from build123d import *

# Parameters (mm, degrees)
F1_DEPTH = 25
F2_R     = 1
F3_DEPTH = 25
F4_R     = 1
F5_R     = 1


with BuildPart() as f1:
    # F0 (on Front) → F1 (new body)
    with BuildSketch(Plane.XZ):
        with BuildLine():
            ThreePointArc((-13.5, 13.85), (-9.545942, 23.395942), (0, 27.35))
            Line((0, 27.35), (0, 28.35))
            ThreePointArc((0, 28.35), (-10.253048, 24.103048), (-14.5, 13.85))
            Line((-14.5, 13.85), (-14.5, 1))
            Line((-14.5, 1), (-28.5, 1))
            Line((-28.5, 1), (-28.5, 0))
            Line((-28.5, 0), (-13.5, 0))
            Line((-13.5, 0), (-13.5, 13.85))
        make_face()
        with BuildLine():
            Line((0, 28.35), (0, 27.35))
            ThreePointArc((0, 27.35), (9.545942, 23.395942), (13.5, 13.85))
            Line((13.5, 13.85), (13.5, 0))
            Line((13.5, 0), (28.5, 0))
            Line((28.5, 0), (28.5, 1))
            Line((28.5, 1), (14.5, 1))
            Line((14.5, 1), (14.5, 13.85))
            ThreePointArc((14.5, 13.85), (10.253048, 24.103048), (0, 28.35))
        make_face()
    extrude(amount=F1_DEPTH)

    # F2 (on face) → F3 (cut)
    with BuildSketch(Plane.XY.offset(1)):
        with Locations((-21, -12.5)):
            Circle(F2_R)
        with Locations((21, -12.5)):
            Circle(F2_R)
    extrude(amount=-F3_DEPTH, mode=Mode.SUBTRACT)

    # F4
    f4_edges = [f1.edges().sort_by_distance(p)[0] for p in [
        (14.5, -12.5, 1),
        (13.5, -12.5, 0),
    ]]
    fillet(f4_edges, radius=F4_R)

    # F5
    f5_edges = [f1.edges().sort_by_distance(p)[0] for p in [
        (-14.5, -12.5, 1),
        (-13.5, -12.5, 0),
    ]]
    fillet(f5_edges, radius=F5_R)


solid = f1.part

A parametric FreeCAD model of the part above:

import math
import FreeCAD as App
import Part
import Sketcher

V = App.Vector
Q = App.Units.Quantity


def edges_at(feature, points):
    """Names of the edges that pass closest to the given points."""
    edges = feature.Shape.Edges
    near = lambda p: min(range(len(edges)), key=lambda i: edges[i].distToShape(Part.Vertex(*p))[0])
    return sorted({f"Edge{near(p) + 1}" for p in points})

doc = App.newDocument("Part")
params = doc.addObject("Spreadsheet::Sheet", "Params")
for row, (alias, value) in enumerate([
    ("sketch1_radius", "13.499998 mm"),
    ("sketch1_radius2", "14.500001 mm"),
    ("sketch1_width", "15 mm"),
    ("sketch1_height", "1 mm"),
    ("sketch1_height2", "13.85 mm"),
    ("pad1_length", "25 mm"),
    ("sketch2_diameter", "2 mm"),
    ("pocket1_length", "25 mm"),
    ("fillet_radius", "1 mm"),
    ("fillet2_radius", "1 mm"),
], start=1):
    params.set(f"A{row}", alias)
    params.set(f"B{row}", "=" + value)
    params.setAlias(f"B{row}", alias)

body = doc.addObject("PartDesign::Body", "Body")

sketch1 = doc.addObject("Sketcher::SketchObject", "Sketch")
body.addObject(sketch1)
sketch1.AttachmentSupport = (doc.XZ_Plane, [""])
sketch1.MapMode = "FlatFace"
sketch1.addGeometry([
    Part.ArcOfCircle(Part.Circle(V(0, 13.9, 0), V(0, 0, 1), 13.5), math.radians(90), math.radians(180)),
    Part.ArcOfCircle(Part.Circle(V(0, 13.9, 0), V(0, 0, 1), 13.5), math.radians(0), math.radians(90)),
    Part.LineSegment(V(13.5, 13.8, 0), V(13.5, 0, 0)),
    Part.LineSegment(V(13.5, 0, 0), V(28.5, 0, 0)),
    Part.LineSegment(V(28.5, 0, 0), V(28.5, 1, 0)),
    Part.LineSegment(V(28.5, 1, 0), V(14.5, 1, 0)),
    Part.LineSegment(V(14.5, 1, 0), V(14.5, 13.8, 0)),
    Part.ArcOfCircle(Part.Circle(V(0, 13.8, 0), V(0, 0, 1), 14.5), math.radians(0), math.radians(90)),
    Part.ArcOfCircle(Part.Circle(V(0, 13.8, 0), V(0, 0, 1), 14.5), math.radians(90), math.radians(180)),
    Part.LineSegment(V(-14.5, 13.8, 0), V(-14.5, 1, 0)),
    Part.LineSegment(V(-14.5, 1, 0), V(-28.5, 1, 0)),
    Part.LineSegment(V(-28.5, 1, 0), V(-28.5, 0, 0)),
    Part.LineSegment(V(-28.5, 0, 0), V(-13.5, 0, 0)),
    Part.LineSegment(V(-13.5, 0, 0), V(-13.5, 13.8, 0)),
], False)
sketch1.addConstraint([
    Sketcher.Constraint("Tangent", 0, 1, 1, 2),
    Sketcher.Constraint("Tangent", 1, 1, 2, 1),
    Sketcher.Constraint("Coincident", 2, 2, 3, 1),
    Sketcher.Constraint("Coincident", 3, 2, 4, 1),
    Sketcher.Constraint("Coincident", 4, 2, 5, 1),
    Sketcher.Constraint("Coincident", 5, 2, 6, 1),
    Sketcher.Constraint("Tangent", 6, 2, 7, 1),
    Sketcher.Constraint("Tangent", 7, 2, 8, 1),
    Sketcher.Constraint("Tangent", 8, 2, 9, 1),
    Sketcher.Constraint("Coincident", 9, 2, 10, 1),
    Sketcher.Constraint("Coincident", 10, 2, 11, 1),
    Sketcher.Constraint("Coincident", 11, 2, 12, 1),
    Sketcher.Constraint("Coincident", 12, 2, 13, 1),
    Sketcher.Constraint("Tangent", 13, 2, 0, 2),
    Sketcher.Constraint("Vertical", 2),
    Sketcher.Constraint("Horizontal", 3),
    Sketcher.Constraint("Vertical", 4),
    Sketcher.Constraint("Horizontal", 5),
    Sketcher.Constraint("Vertical", 6),
    Sketcher.Constraint("Vertical", 9),
    Sketcher.Constraint("Horizontal", 10),
    Sketcher.Constraint("Vertical", 11),
    Sketcher.Constraint("Horizontal", 12),
    Sketcher.Constraint("Vertical", 13),
    Sketcher.Constraint("Coincident", 7, 3, 0, 3),
    Sketcher.Constraint("Equal", 0, 1),
    Sketcher.Constraint("Equal", 7, 8),
    Sketcher.Constraint("Symmetric", 3, 2, 11, 2, -1, 1),
    Sketcher.Constraint("Symmetric", 5, 2, 9, 2, -2),
    Sketcher.Constraint("PointOnObject", 0, 1, -2),
    Sketcher.Constraint("PointOnObject", 2, 2, -1),
    Sketcher.Constraint("PointOnObject", 7, 2, -2),
    Sketcher.Constraint("Radius", 0, Q("13.499998 mm")),
    Sketcher.Constraint("Radius", 7, Q("14.500001 mm")),
    Sketcher.Constraint("DistanceX", 3, 1, 3, 2, Q("15 mm")),
    Sketcher.Constraint("DistanceY", 4, 1, 4, 2, Q("1 mm")),
    Sketcher.Constraint("DistanceY", 2, 2, 2, 1, Q("13.85 mm")),
])
sketch1.setExpression("Constraints[32]", "Params.sketch1_radius")
sketch1.setExpression("Constraints[33]", "Params.sketch1_radius2")
sketch1.setExpression("Constraints[34]", "Params.sketch1_width")
sketch1.setExpression("Constraints[35]", "Params.sketch1_height")
sketch1.setExpression("Constraints[36]", "Params.sketch1_height2")
pad1 = doc.addObject("PartDesign::Pad", "Pad")
body.addObject(pad1)
pad1.Profile = sketch1
pad1.setExpression("Length", "Params.pad1_length")

sketch2 = doc.addObject("Sketcher::SketchObject", "Sketch001")
body.addObject(sketch2)
sketch2.AttachmentSupport = (doc.XY_Plane, [""])
sketch2.MapMode = "FlatFace"
sketch2.AttachmentOffset = App.Placement(V(0, 0, 1), App.Rotation())
sketch2.addGeometry([
    Part.Circle(V(-21, -12.5, 0), V(0, 0, 1), 1),
    Part.Circle(V(21, -12.5, 0), V(0, 0, 1), 1),
], False)
sketch2.addConstraint([
    Sketcher.Constraint("Equal", 0, 1),
    Sketcher.Constraint("Symmetric", 0, 3, 1, 3, -2),
    Sketcher.Constraint("Diameter", 0, Q("2 mm")),
    Sketcher.Constraint("DistanceX", 0, 3, -1, 1, Q("21 mm")),
    Sketcher.Constraint("DistanceY", 0, 3, -1, 1, Q("12.5 mm")),
])
sketch2.setExpression("Constraints[2]", "Params.sketch2_diameter")
pocket1 = doc.addObject("PartDesign::Pocket", "Pocket")
body.addObject(pocket1)
pocket1.Profile = sketch2
pocket1.setExpression("Length", "Params.pocket1_length")
doc.recompute()

fillet = doc.addObject("PartDesign::Fillet", "Fillet")
body.addObject(fillet)
fillet.Base = (pocket1, edges_at(pocket1, [(14.5, -12.5, 1), (13.5, -12.5, 0)]))
fillet.setExpression("Radius", "Params.fillet_radius")
doc.recompute()

fillet2 = doc.addObject("PartDesign::Fillet", "Fillet001")
body.addObject(fillet2)
fillet2.Base = (fillet, edges_at(fillet, [(-14.5, -12.5, 1), (-13.5, -12.5, 0)]))
fillet2.setExpression("Radius", "Params.fillet2_radius")

doc.recompute()
